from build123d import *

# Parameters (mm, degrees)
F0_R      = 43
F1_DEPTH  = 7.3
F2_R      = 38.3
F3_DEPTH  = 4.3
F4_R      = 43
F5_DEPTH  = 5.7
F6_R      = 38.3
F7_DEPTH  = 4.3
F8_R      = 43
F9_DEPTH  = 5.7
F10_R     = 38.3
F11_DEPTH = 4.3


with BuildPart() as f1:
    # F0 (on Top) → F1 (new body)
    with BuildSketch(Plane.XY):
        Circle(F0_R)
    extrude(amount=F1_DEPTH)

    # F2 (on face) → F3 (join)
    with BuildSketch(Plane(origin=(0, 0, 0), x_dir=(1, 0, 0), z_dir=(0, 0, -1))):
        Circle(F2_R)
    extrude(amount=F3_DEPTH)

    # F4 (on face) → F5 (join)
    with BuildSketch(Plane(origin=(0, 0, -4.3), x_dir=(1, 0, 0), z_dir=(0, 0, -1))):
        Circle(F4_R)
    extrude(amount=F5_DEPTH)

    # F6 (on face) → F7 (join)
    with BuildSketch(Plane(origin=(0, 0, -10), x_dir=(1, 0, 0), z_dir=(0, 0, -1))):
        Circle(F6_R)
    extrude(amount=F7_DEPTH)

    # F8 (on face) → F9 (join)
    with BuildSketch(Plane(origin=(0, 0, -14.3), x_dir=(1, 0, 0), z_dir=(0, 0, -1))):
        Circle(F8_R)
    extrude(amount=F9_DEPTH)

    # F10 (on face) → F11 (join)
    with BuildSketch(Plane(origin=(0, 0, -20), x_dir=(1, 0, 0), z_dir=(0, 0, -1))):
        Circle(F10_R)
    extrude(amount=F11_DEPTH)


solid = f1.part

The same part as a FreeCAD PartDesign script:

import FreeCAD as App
import Part
import Sketcher

V = App.Vector

doc = App.newDocument("Part")
params = doc.addObject("Spreadsheet::Sheet", "Params")
for row, (alias, value) in enumerate([
    ("sketch1_diameter", "86 mm"),
    ("pad1_length", "7.3 mm"),
    ("sketch2_diameter", "76.6 mm"),
    ("pad2_length", "4.3 mm"),
    ("sketch3_diameter", "86 mm"),
    ("pad3_length", "5.7 mm"),
    ("sketch4_diameter", "76.6 mm"),
    ("pad4_length", "4.3 mm"),
    ("sketch5_diameter", "86 mm"),
    ("pad5_length", "5.7 mm"),
    ("sketch6_diameter", "76.6 mm"),
    ("pad6_length", "4.3 mm"),
], start=1):
    params.set(f"A{row}", alias)
    params.set(f"B{row}", "=" + value)
    params.setAlias(f"B{row}", alias)

body = doc.addObject("PartDesign::Body", "Body")

sketch1 = body.newObject("Sketcher::SketchObject", "Sketch")
sketch1.AttachmentSupport = (doc.getObject("XY_Plane"), [""])
sketch1.MapMode = "FlatFace"
sketch1.addGeometry(Part.Circle(V(0, 0, 0), V(0, 0, 1), 43), False)
sketch1.addConstraint([
    Sketcher.Constraint("Coincident", 0, 3, -1, 1),
    Sketcher.Constraint("Diameter", 0, 86.0),
])
sketch1.setExpression("Constraints[1]", "Params.sketch1_diameter")
pad1 = body.newObject("PartDesign::Pad", "Pad")
pad1.Profile = sketch1
pad1.setExpression("Length", "Params.pad1_length")

sketch2 = body.newObject("Sketcher::SketchObject", "Sketch001")
sketch2.AttachmentSupport = (doc.getObject("XY_Plane"), [""])
sketch2.MapMode = "FlatFace"
sketch2.addGeometry(Part.Circle(V(0, 0, 0), V(0, 0, 1), 38.3), False)
sketch2.addConstraint([
    Sketcher.Constraint("Coincident", 0, 3, -1, 1),
    Sketcher.Constraint("Diameter", 0, 76.6),
])
sketch2.setExpression("Constraints[1]", "Params.sketch2_diameter")
pad2 = body.newObject("PartDesign::Pad", "Pad001")
pad2.Profile = sketch2
pad2.setExpression("Length", "Params.pad2_length")
pad2.Reversed = True

sketch3 = body.newObject("Sketcher::SketchObject", "Sketch002")
sketch3.AttachmentSupport = (doc.getObject("XY_Plane"), [""])
sketch3.MapMode = "FlatFace"
sketch3.AttachmentOffset = App.Placement(V(0, 0, -4.3), App.Rotation())
sketch3.addGeometry(Part.Circle(V(0, 0, 0), V(0, 0, 1), 43), False)
sketch3.addConstraint([
    Sketcher.Constraint("Coincident", 0, 3, -1, 1),
    Sketcher.Constraint("Diameter", 0, 86.0),
])
sketch3.setExpression("Constraints[1]", "Params.sketch3_diameter")
pad3 = body.newObject("PartDesign::Pad", "Pad002")
pad3.Profile = sketch3
pad3.setExpression("Length", "Params.pad3_length")
pad3.Reversed = True

sketch4 = body.newObject("Sketcher::SketchObject", "Sketch003")
sketch4.AttachmentSupport = (doc.getObject("XY_Plane"), [""])
sketch4.MapMode = "FlatFace"
sketch4.AttachmentOffset = App.Placement(V(0, 0, -10), App.Rotation())
sketch4.addGeometry(Part.Circle(V(0, 0, 0), V(0, 0, 1), 38.3), False)
sketch4.addConstraint([
    Sketcher.Constraint("Coincident", 0, 3, -1, 1),
    Sketcher.Constraint("Diameter", 0, 76.6),
])
sketch4.setExpression("Constraints[1]", "Params.sketch4_diameter")
pad4 = body.newObject("PartDesign::Pad", "Pad003")
pad4.Profile = sketch4
pad4.setExpression("Length", "Params.pad4_length")
pad4.Reversed = True

sketch5 = body.newObject("Sketcher::SketchObject", "Sketch004")
sketch5.AttachmentSupport = (doc.getObject("XY_Plane"), [""])
sketch5.MapMode = "FlatFace"
sketch5.AttachmentOffset = App.Placement(V(0, 0, -14.3), App.Rotation())
sketch5.addGeometry(Part.Circle(V(0, 0, 0), V(0, 0, 1), 43), False)
sketch5.addConstraint([
    Sketcher.Constraint("Coincident", 0, 3, -1, 1),
    Sketcher.Constraint("Diameter", 0, 86.0),
])
sketch5.setExpression("Constraints[1]", "Params.sketch5_diameter")
pad5 = body.newObject("PartDesign::Pad", "Pad004")
pad5.Profile = sketch5
pad5.setExpression("Length", "Params.pad5_length")
pad5.Reversed = True

sketch6 = body.newObject("Sketcher::SketchObject", "Sketch005")
sketch6.AttachmentSupport = (doc.getObject("XY_Plane"), [""])
sketch6.MapMode = "FlatFace"
sketch6.AttachmentOffset = App.Placement(V(0, 0, -20), App.Rotation())
sketch6.addGeometry(Part.Circle(V(0, 0, 0), V(0, 0, 1), 38.3), False)
sketch6.addConstraint([
    Sketcher.Constraint("Coincident", 0, 3, -1, 1),
    Sketcher.Constraint("Diameter", 0, 76.6),
])
sketch6.setExpression("Constraints[1]", "Params.sketch6_diameter")
pad6 = body.newObject("PartDesign::Pad", "Pad005")
pad6.Profile = sketch6
pad6.setExpression("Length", "Params.pad6_length")
pad6.Reversed = True

doc.recompute()
